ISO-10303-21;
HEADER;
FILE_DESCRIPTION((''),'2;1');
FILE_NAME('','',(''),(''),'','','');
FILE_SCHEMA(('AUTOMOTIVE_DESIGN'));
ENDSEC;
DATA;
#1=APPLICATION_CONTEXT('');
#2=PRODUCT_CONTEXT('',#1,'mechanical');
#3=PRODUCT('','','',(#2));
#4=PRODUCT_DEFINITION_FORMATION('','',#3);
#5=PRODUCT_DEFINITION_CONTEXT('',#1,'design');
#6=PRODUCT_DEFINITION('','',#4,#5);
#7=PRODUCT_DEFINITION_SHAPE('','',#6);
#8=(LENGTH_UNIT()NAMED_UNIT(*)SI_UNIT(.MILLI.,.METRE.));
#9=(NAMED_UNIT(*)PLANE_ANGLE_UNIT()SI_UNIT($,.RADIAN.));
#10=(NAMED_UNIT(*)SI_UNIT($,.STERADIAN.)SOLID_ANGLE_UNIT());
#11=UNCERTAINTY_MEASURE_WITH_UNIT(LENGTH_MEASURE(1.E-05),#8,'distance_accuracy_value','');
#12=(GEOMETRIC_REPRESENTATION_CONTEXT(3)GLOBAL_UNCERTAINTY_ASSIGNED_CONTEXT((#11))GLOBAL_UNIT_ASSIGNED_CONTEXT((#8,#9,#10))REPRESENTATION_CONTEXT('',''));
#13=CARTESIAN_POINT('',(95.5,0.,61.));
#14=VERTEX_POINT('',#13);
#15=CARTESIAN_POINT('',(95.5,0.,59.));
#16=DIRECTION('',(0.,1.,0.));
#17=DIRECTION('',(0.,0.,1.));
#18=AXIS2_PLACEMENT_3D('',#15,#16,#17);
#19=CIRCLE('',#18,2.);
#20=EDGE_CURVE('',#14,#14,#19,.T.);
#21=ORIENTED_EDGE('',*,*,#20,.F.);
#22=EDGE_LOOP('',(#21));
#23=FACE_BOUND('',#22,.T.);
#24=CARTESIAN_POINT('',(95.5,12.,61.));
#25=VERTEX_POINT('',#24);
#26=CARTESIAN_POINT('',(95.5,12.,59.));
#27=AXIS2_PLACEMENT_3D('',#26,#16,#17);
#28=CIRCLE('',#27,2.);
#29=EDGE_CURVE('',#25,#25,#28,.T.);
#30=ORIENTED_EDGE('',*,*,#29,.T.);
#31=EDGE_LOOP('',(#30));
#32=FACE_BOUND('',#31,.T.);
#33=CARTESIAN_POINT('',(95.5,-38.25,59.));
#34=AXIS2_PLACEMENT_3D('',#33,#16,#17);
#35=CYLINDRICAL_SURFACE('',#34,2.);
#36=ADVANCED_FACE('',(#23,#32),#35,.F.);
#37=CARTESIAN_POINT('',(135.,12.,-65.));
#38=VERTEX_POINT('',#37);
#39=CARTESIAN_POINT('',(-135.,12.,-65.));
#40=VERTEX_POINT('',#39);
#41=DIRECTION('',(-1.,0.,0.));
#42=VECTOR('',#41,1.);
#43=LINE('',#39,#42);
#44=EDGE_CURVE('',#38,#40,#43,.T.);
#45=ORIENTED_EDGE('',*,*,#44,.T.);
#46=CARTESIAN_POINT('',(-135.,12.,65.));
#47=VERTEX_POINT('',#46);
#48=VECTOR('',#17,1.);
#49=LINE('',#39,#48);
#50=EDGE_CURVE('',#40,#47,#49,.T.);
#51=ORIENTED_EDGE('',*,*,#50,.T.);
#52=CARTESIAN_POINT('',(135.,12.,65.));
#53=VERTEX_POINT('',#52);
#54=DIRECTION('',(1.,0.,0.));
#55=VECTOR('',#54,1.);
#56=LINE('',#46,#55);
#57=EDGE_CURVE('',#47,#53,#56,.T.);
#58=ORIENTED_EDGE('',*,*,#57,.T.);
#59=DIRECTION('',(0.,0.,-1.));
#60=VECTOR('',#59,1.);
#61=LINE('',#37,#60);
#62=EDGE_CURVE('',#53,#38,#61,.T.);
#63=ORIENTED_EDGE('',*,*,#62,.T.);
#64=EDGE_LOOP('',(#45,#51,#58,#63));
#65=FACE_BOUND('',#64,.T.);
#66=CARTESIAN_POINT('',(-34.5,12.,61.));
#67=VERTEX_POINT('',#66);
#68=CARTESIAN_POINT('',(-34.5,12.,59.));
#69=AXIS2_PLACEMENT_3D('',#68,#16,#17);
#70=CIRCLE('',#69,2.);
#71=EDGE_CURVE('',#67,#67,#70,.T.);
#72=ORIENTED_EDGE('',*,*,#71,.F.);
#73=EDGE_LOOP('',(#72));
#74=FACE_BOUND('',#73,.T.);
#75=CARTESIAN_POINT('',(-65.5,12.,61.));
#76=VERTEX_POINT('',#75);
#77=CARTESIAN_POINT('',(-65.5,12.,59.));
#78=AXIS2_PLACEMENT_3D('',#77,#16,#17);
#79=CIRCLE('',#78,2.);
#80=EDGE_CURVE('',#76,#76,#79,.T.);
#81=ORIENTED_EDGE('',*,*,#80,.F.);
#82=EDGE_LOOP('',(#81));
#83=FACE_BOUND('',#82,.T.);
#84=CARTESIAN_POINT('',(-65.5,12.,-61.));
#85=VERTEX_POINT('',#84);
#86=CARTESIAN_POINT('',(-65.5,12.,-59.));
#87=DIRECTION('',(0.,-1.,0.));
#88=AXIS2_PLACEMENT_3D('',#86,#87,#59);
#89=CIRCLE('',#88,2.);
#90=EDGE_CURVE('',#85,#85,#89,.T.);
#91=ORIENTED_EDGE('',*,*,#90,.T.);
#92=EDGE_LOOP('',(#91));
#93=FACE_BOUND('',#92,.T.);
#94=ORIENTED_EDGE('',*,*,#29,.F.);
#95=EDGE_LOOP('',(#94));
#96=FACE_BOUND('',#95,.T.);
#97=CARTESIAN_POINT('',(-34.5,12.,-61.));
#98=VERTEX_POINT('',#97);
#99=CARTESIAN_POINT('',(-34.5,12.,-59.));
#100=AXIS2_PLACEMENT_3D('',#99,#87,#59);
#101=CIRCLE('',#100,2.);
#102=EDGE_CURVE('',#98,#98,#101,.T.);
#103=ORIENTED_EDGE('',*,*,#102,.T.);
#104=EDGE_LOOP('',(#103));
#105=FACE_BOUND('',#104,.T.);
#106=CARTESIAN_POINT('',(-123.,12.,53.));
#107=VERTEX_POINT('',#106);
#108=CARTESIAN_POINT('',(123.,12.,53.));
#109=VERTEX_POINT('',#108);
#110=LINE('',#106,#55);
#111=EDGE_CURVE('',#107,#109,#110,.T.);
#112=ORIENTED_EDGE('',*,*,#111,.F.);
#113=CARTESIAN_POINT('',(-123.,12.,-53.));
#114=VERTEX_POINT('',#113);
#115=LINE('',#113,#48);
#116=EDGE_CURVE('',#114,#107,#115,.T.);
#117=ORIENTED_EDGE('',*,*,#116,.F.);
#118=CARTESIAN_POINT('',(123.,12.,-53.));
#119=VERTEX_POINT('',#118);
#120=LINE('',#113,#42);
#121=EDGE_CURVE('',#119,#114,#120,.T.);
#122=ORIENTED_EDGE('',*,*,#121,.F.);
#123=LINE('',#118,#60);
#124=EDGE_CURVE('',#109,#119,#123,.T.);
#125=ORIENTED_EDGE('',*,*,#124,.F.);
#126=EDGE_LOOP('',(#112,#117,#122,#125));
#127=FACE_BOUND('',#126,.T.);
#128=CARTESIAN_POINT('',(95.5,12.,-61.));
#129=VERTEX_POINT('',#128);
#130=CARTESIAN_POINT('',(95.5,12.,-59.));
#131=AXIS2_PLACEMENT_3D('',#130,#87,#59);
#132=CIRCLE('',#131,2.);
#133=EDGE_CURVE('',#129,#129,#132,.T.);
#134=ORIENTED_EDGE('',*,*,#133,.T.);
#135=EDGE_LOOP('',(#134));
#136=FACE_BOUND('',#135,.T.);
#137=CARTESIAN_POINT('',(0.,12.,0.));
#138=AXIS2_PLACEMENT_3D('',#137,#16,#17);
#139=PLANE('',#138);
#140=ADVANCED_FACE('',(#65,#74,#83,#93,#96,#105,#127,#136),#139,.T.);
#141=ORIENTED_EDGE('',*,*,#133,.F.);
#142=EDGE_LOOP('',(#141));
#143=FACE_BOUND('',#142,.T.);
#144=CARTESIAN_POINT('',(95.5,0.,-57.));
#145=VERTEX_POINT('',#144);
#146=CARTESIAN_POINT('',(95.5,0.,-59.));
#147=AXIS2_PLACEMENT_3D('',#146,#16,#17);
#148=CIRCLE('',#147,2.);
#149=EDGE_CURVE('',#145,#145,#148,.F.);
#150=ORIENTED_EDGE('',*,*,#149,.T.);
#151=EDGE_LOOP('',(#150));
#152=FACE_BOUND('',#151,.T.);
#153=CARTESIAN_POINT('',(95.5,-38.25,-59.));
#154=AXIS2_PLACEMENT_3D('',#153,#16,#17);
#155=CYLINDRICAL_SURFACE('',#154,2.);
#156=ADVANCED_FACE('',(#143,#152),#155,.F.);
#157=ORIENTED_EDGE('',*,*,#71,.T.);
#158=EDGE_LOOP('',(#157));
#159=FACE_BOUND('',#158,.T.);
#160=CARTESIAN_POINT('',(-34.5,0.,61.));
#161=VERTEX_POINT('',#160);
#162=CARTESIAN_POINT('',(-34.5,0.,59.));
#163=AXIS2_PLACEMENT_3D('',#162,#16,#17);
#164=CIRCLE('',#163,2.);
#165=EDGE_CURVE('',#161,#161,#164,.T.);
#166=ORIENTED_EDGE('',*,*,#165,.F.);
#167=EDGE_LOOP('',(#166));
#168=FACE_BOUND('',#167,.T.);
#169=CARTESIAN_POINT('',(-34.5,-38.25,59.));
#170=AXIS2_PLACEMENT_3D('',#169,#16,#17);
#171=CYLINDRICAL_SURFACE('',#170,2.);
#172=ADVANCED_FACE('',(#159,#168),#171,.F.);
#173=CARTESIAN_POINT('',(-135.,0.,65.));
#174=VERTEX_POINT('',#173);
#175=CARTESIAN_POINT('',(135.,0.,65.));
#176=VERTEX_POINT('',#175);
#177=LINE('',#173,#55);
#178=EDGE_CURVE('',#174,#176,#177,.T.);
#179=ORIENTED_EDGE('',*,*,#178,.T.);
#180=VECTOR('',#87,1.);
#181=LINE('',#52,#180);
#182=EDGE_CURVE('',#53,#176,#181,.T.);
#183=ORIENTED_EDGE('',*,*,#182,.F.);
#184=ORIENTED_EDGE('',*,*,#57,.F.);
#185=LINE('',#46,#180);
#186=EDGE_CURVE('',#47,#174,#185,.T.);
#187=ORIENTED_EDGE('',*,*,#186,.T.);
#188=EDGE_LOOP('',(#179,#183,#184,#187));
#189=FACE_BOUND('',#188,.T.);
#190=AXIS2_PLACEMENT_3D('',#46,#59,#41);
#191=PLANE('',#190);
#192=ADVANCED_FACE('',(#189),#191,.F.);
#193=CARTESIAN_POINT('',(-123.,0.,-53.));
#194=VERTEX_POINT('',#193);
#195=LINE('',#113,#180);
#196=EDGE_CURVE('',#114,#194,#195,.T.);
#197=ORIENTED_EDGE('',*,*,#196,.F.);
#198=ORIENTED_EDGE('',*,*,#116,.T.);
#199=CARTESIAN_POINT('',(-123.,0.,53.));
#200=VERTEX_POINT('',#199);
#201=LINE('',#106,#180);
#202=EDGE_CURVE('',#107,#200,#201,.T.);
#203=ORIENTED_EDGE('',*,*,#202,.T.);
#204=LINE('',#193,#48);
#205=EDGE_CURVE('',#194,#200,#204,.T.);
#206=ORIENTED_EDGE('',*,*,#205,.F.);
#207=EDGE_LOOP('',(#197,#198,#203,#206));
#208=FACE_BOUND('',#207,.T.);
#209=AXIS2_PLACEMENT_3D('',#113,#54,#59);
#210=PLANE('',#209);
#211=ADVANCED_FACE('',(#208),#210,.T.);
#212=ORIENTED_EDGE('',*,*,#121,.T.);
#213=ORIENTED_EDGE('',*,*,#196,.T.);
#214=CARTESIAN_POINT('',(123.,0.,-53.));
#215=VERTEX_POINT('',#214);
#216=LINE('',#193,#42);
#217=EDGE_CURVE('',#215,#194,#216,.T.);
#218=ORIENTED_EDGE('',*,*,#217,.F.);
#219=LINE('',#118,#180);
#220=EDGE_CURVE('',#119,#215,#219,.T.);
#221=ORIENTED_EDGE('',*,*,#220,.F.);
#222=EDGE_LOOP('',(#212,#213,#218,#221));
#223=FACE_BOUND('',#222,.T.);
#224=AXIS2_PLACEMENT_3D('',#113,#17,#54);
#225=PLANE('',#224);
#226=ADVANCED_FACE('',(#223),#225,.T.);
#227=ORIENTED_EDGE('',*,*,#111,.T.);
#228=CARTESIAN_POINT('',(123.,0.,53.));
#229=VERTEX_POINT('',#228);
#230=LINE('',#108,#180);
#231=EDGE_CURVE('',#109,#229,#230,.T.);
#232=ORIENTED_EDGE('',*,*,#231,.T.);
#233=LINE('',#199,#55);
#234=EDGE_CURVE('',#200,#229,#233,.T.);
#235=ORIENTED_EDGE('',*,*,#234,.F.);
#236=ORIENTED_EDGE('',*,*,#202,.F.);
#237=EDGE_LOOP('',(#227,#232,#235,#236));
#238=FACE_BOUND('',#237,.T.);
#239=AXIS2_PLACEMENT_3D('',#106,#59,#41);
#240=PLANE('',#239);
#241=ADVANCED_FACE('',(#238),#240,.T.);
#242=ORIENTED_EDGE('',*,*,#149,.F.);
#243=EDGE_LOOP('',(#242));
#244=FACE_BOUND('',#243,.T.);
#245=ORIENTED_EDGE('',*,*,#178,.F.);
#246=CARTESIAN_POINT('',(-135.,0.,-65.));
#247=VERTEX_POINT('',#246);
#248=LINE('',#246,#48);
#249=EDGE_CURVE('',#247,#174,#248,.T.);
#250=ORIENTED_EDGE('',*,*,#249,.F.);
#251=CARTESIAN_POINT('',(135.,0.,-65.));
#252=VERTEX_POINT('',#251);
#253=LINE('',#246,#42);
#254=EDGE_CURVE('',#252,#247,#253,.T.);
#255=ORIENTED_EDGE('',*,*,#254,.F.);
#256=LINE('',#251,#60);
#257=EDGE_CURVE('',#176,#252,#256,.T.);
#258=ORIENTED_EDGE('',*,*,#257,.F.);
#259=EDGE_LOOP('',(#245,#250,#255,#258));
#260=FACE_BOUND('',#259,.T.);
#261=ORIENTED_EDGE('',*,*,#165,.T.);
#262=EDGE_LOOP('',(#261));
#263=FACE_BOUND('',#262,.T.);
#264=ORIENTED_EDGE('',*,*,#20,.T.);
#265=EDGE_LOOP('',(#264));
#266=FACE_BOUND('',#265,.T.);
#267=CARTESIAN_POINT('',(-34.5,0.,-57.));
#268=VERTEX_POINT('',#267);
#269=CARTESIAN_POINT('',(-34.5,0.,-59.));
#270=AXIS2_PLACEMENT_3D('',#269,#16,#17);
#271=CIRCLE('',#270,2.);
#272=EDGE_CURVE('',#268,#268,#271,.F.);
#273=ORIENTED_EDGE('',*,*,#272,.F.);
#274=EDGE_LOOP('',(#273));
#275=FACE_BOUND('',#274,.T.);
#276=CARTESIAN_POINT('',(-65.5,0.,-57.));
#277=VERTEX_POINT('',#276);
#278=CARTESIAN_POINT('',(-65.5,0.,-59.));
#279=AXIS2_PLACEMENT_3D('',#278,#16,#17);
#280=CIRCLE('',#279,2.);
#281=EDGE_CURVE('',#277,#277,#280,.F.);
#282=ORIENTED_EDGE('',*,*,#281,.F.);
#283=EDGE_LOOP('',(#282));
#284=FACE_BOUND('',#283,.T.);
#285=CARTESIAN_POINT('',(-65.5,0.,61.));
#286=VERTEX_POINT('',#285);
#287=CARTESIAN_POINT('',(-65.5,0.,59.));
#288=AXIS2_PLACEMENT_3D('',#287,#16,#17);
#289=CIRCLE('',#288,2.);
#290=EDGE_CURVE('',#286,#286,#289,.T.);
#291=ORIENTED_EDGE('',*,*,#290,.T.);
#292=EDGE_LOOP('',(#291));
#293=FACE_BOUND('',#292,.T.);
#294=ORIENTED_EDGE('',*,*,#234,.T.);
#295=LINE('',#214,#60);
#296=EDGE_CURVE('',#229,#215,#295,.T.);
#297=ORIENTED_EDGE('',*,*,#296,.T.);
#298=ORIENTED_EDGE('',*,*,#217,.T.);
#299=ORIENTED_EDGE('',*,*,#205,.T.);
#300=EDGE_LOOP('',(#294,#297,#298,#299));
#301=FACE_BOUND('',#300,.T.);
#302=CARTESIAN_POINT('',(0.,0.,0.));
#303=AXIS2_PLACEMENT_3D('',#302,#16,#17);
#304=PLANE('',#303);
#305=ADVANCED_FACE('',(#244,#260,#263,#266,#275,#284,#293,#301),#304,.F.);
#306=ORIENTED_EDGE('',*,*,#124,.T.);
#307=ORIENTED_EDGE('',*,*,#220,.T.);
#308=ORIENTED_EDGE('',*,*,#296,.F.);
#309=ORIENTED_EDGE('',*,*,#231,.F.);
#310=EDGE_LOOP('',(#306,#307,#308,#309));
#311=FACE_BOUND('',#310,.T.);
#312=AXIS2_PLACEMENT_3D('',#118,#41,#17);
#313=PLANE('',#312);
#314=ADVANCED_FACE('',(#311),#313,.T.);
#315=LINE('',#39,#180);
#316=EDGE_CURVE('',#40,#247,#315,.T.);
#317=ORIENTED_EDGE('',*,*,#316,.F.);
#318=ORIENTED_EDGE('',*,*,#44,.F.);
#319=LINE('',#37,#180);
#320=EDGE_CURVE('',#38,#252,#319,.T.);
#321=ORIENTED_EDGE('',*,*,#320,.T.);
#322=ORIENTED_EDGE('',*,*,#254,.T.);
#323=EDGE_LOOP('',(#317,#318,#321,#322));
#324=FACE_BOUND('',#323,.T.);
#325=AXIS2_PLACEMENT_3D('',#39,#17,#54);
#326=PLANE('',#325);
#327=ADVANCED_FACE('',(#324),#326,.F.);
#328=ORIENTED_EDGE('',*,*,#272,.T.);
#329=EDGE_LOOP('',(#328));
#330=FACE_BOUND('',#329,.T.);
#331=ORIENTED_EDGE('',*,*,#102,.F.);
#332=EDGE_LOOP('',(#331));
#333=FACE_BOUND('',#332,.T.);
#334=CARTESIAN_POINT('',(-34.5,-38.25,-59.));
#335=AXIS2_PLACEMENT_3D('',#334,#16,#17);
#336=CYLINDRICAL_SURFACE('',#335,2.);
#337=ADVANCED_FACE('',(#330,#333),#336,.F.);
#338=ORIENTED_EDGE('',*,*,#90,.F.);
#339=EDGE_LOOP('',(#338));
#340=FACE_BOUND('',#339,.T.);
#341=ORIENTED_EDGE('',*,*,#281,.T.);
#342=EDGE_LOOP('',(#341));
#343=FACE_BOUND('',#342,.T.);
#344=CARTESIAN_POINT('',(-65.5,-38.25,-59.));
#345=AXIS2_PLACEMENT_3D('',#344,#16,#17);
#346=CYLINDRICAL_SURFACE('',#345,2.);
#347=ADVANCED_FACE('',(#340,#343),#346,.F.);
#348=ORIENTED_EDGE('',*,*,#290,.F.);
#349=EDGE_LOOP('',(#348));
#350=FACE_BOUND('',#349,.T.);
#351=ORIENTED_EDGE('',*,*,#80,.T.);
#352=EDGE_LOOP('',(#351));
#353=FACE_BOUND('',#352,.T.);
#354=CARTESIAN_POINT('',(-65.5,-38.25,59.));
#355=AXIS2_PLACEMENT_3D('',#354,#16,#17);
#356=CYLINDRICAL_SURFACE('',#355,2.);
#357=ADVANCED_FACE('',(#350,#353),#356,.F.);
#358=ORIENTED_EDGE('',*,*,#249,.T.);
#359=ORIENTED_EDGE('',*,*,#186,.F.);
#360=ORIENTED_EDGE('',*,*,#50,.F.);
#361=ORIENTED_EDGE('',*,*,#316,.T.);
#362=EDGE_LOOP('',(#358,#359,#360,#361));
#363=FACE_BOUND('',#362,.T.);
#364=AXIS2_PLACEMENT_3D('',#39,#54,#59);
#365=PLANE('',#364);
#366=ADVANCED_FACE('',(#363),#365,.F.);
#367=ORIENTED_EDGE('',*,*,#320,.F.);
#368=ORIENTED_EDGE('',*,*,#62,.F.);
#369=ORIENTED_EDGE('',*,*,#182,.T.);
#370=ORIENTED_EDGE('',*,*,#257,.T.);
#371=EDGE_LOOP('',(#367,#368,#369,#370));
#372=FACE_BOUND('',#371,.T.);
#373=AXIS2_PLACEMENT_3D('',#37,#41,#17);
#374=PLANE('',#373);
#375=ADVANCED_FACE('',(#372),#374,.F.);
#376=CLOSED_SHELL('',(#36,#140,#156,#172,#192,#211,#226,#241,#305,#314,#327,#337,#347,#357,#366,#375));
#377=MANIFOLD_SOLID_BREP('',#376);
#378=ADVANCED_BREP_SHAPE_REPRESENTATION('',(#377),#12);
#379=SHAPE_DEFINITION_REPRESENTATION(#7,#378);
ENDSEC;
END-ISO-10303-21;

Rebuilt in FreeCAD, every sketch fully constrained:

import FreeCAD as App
import Part
import Sketcher
Q = App.Units.Quantity

doc = App.newDocument("Part")
body = doc.addObject("PartDesign::Body", "Body")

# Sketch on XZ plane
sketch1 = doc.addObject("Sketcher::SketchObject", "Sketch")
body.addObject(sketch1)
sketch1.AttachmentSupport = (doc.XZ_Plane, [""])
sketch1.MapMode = "FlatFace"
sketch1.addGeometry([
    Part.LineSegment(App.Vector(-135, -65, 0), App.Vector(-135, 65, 0)),  # 0
    Part.LineSegment(App.Vector(-135, 65, 0), App.Vector(135, 65, 0)),  # 1
    Part.LineSegment(App.Vector(135, 65, 0), App.Vector(135, -65, 0)),  # 2
    Part.LineSegment(App.Vector(135, -65, 0), App.Vector(-135, -65, 0)),  # 3
    Part.LineSegment(App.Vector(123, 53, 0), App.Vector(-123, 53, 0)),  # 4
    Part.LineSegment(App.Vector(-123, 53, 0), App.Vector(-123, -53, 0)),  # 5
    Part.LineSegment(App.Vector(-123, -53, 0), App.Vector(123, -53, 0)),  # 6
    Part.LineSegment(App.Vector(123, -53, 0), App.Vector(123, 53, 0)),  # 7
], False)
sketch1.addConstraint([
    Sketcher.Constraint("Coincident", 0, 2, 1, 1),
    Sketcher.Constraint("Coincident", 1, 2, 2, 1),
    Sketcher.Constraint("Coincident", 2, 2, 3, 1),
    Sketcher.Constraint("Coincident", 3, 2, 0, 1),
    Sketcher.Constraint("Coincident", 4, 2, 5, 1),
    Sketcher.Constraint("Coincident", 5, 2, 6, 1),
    Sketcher.Constraint("Coincident", 6, 2, 7, 1),
    Sketcher.Constraint("Coincident", 7, 2, 4, 1),
    Sketcher.Constraint("Vertical", 0),
    Sketcher.Constraint("Horizontal", 1),
    Sketcher.Constraint("Vertical", 2),
    Sketcher.Constraint("Horizontal", 3),
    Sketcher.Constraint("Horizontal", 4),
    Sketcher.Constraint("Vertical", 5),
    Sketcher.Constraint("Horizontal", 6),
    Sketcher.Constraint("Vertical", 7),
    Sketcher.Constraint("Symmetric", 0, 2, 2, 2, -1, 1),
    Sketcher.Constraint("Symmetric", 4, 2, 6, 2, -1, 1),
    Sketcher.Constraint("DistanceX", 1, 1, 1, 2, Q("270 mm")),
    Sketcher.Constraint("DistanceX", 4, 2, 4, 1, Q("246 mm")),
    Sketcher.Constraint("DistanceY", 0, 1, 0, 2, Q("130 mm")),
    Sketcher.Constraint("DistanceY", 5, 2, 5, 1, Q("106 mm")),
])
pad1 = doc.addObject("PartDesign::Pad", "Pad")
body.addObject(pad1)
pad1.Profile = sketch1
pad1.Length = 12
pad1.Reversed = True

# Sketch on XZ plane
sketch2 = doc.addObject("Sketcher::SketchObject", "Sketch001")
body.addObject(sketch2)
sketch2.AttachmentSupport = (doc.XZ_Plane, [""])
sketch2.MapMode = "FlatFace"
sketch2.AttachmentOffset = App.Placement(App.Vector(0, 0, -12), App.Rotation())
sketch2.addGeometry(Part.Circle(App.Vector(-65.5, 59, 0), App.Vector(0, 0, 1), 2), False)
sketch2.addConstraint([
    Sketcher.Constraint("Diameter", 0, Q("4 mm")),
    Sketcher.Constraint("DistanceY", -1, 1, 0, 3, Q("59 mm")),
    Sketcher.Constraint("DistanceX", 0, 3, -1, 1, Q("65.5 mm")),
])
pocket1 = doc.addObject("PartDesign::Pocket", "Pocket")
body.addObject(pocket1)
pocket1.Profile = sketch2
pocket1.Length = 50.25
pocket1.Reversed = True
doc.recompute()

mirrored = doc.addObject("PartDesign::Mirrored", "Mirrored")
body.addObject(mirrored)
mirrored.Originals = [pocket1]
mirrored.MirrorPlane = (doc.XY_Plane, [""])
body.Tip = mirrored
doc.recompute()

linearpattern = doc.addObject("PartDesign::LinearPattern", "LinearPattern")
body.addObject(linearpattern)
linearpattern.Originals = [pocket1]
linearpattern.Direction = (doc.X_Axis, [""])
linearpattern.Mode = "offset"
linearpattern.Offset = 31
linearpattern.Occurrences = 2
body.Tip = linearpattern

# Sketch on XZ plane
sketch3 = doc.addObject("Sketcher::SketchObject", "Sketch002")
body.addObject(sketch3)
sketch3.AttachmentSupport = (doc.XZ_Plane, [""])
sketch3.MapMode = "FlatFace"
sketch3.AttachmentOffset = App.Placement(App.Vector(0, 0, -12), App.Rotation())
sketch3.addGeometry(Part.Circle(App.Vector(-34.5, -59, 0), App.Vector(0, 0, 1), 2), False)
sketch3.addConstraint([
    Sketcher.Constraint("Diameter", 0, Q("4 mm")),
    Sketcher.Constraint("DistanceY", 0, 3, -1, 1, Q("59 mm")),
    Sketcher.Constraint("DistanceX", 0, 3, -1, 1, Q("34.5 mm")),
])
pocket2 = doc.addObject("PartDesign::Pocket", "Pocket001")
body.addObject(pocket2)
pocket2.Profile = sketch3
pocket2.Length = 50.25
pocket2.Reversed = True
doc.recompute()

linearpattern2 = doc.addObject("PartDesign::LinearPattern", "LinearPattern001")
body.addObject(linearpattern2)
linearpattern2.Originals = [pocket1]
linearpattern2.Direction = (doc.X_Axis, [""])
linearpattern2.Mode = "offset"
linearpattern2.Offset = 161
linearpattern2.Occurrences = 2
body.Tip = linearpattern2

# Sketch on XZ plane
sketch4 = doc.addObject("Sketcher::SketchObject", "Sketch003")
body.addObject(sketch4)
sketch4.AttachmentSupport = (doc.XZ_Plane, [""])
sketch4.MapMode = "FlatFace"
sketch4.AttachmentOffset = App.Placement(App.Vector(0, 0, -12), App.Rotation())
sketch4.addGeometry(Part.Circle(App.Vector(95.5, -59, 0), App.Vector(0, 0, 1), 2), False)
sketch4.addConstraint([
    Sketcher.Constraint("Diameter", 0, Q("4 mm")),
    Sketcher.Constraint("DistanceY", 0, 3, -1, 1, Q("59 mm")),
    Sketcher.Constraint("DistanceX", -1, 1, 0, 3, Q("95.5 mm")),
])
pocket3 = doc.addObject("PartDesign::Pocket", "Pocket002")
body.addObject(pocket3)
pocket3.Profile = sketch4
pocket3.Length = 50.25
pocket3.Reversed = True

# Sketch on XZ plane
sketch5 = doc.addObject("Sketcher::SketchObject", "Sketch004")
body.addObject(sketch5)
sketch5.AttachmentSupport = (doc.XZ_Plane, [""])
sketch5.MapMode = "FlatFace"
sketch5.AttachmentOffset = App.Placement(App.Vector(0, 0, -12), App.Rotation())
sketch5.addGeometry(Part.Circle(App.Vector(-65.5, -59, 0), App.Vector(0, 0, 1), 2), False)
sketch5.addConstraint([
    Sketcher.Constraint("Diameter", 0, Q("4 mm")),
    Sketcher.Constraint("DistanceY", 0, 3, -1, 1, Q("59 mm")),
    Sketcher.Constraint("DistanceX", 0, 3, -1, 1, Q("65.5 mm")),
])
pocket4 = doc.addObject("PartDesign::Pocket", "Pocket003")
body.addObject(pocket4)
pocket4.Profile = sketch5
pocket4.Length = 50.25
pocket4.Reversed = True

doc.recompute()
